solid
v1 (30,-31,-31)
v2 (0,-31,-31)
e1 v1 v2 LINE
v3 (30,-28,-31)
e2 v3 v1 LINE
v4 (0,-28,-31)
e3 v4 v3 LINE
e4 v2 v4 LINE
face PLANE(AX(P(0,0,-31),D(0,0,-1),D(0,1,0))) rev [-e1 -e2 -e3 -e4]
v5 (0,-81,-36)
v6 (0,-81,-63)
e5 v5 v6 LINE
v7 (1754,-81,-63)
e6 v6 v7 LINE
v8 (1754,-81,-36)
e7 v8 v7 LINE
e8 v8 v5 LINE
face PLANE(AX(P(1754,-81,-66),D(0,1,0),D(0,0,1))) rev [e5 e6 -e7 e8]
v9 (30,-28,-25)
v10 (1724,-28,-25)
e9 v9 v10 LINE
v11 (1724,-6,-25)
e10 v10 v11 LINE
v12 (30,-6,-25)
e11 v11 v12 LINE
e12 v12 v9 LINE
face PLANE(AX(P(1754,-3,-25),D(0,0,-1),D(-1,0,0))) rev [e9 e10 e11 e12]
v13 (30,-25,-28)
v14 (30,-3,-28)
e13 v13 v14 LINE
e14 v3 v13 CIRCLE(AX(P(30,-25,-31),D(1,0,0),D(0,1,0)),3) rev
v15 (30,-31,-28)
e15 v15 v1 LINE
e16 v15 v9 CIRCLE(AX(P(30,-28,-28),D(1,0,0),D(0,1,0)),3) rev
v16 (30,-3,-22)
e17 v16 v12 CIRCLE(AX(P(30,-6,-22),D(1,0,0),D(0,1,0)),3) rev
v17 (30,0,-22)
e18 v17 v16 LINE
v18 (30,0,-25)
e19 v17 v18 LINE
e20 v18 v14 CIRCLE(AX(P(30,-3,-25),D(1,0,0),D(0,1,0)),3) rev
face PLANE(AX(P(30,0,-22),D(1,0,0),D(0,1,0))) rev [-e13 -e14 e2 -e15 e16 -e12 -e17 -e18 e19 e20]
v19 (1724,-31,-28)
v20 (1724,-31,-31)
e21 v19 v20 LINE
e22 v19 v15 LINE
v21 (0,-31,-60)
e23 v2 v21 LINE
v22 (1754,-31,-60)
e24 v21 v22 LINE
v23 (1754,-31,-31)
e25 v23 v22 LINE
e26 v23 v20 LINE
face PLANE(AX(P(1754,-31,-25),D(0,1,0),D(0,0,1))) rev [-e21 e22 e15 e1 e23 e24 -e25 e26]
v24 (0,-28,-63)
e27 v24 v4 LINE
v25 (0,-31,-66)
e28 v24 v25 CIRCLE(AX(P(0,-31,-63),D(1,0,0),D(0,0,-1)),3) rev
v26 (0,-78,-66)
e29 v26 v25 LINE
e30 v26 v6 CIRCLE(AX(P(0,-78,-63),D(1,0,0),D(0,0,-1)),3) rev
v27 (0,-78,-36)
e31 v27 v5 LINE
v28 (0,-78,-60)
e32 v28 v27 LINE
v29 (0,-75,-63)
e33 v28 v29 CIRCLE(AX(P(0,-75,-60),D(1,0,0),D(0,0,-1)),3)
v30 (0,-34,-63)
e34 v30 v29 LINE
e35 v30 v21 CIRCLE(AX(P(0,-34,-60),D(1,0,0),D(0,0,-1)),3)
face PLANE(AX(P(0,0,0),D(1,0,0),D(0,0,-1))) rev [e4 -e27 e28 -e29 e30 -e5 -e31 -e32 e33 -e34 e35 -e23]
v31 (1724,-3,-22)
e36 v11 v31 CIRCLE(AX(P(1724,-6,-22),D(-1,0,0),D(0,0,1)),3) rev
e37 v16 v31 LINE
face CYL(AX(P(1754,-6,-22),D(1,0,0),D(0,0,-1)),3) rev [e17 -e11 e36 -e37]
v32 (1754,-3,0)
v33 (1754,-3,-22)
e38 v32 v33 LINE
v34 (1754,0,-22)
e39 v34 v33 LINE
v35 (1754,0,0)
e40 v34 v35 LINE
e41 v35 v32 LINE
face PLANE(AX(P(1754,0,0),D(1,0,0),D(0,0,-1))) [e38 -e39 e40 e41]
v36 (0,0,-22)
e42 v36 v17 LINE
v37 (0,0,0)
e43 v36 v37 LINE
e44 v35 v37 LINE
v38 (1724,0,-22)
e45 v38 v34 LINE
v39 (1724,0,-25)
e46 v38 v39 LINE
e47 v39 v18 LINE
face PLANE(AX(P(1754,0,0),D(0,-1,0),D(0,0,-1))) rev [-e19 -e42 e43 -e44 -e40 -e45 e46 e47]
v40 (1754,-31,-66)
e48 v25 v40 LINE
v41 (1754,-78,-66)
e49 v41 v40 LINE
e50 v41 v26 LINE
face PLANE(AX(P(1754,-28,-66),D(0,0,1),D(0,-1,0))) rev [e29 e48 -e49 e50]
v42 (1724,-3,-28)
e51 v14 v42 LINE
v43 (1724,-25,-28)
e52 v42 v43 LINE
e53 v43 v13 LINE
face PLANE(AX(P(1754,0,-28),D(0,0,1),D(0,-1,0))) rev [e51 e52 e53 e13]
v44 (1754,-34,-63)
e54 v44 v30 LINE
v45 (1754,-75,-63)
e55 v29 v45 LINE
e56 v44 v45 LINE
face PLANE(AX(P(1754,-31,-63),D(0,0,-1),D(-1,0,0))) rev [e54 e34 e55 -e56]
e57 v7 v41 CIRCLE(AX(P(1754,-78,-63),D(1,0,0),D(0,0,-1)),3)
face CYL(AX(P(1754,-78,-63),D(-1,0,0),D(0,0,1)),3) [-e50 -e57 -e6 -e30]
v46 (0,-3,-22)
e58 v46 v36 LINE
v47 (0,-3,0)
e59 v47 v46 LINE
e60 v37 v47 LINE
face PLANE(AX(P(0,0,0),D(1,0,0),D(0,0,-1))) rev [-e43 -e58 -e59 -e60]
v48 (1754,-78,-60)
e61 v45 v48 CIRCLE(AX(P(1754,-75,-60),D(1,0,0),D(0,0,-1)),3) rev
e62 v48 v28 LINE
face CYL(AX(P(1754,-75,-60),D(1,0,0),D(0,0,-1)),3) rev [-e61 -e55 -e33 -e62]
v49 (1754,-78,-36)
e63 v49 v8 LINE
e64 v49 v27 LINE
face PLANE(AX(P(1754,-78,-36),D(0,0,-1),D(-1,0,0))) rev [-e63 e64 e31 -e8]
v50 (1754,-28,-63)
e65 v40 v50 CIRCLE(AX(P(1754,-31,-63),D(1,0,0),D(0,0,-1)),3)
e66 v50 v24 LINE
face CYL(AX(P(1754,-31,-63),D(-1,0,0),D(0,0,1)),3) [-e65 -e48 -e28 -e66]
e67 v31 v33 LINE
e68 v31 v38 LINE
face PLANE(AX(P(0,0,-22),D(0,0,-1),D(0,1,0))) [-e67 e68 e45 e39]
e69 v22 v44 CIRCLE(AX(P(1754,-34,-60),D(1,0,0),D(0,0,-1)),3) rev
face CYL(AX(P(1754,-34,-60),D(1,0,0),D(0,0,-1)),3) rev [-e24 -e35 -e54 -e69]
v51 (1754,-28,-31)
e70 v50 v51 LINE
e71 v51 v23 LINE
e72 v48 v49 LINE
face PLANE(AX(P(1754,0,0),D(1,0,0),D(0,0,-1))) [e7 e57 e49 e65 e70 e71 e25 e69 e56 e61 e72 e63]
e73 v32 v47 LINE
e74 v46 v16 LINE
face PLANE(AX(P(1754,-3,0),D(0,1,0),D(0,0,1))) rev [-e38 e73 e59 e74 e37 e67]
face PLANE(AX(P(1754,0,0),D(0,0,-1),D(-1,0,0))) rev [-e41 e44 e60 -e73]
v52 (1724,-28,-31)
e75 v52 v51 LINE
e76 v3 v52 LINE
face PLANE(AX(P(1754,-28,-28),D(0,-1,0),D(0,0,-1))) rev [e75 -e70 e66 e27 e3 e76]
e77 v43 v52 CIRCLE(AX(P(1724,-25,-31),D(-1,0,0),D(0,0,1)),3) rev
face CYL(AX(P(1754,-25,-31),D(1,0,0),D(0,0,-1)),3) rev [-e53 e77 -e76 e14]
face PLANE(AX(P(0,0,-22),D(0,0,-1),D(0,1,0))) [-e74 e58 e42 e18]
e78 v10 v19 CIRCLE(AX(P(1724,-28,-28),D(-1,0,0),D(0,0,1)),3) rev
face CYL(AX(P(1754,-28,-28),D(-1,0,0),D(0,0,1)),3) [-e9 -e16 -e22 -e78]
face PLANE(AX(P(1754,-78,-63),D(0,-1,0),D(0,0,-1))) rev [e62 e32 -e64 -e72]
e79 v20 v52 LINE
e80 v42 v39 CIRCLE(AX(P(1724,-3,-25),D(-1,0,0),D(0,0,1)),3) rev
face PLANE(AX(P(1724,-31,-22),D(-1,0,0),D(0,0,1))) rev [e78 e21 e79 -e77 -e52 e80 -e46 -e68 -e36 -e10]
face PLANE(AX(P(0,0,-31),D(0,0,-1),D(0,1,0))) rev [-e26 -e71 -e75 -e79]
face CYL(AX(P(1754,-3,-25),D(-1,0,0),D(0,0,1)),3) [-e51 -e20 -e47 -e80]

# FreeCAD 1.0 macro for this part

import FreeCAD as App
import Part
import Sketcher

V = App.Vector


def edges_at(feature, points):
    """Names of the edges that pass closest to the given points."""
    edges = feature.Shape.Edges
    near = lambda p: min(range(len(edges)), key=lambda i: edges[i].distToShape(Part.Vertex(*p))[0])
    return sorted({f"Edge{near(p) + 1}" for p in points})

doc = App.newDocument("Part")
body = doc.addObject("PartDesign::Body", "Body")

# Sketch on YZ plane
sketch1 = body.newObject("Sketcher::SketchObject", "Sketch")
sketch1.AttachmentSupport = (doc.getObject("YZ_Plane"), [""])
sketch1.MapMode = "FlatFace"
sketch1.addGeometry([
    Part.LineSegment(V(0, -28, 0), V(0, 0, 0)),  # 0
    Part.LineSegment(V(0, 0, 0), V(-3, 0, 0)),  # 1
    Part.LineSegment(V(-3, 0, 0), V(-3, -25, 0)),  # 2
    Part.LineSegment(V(-3, -25, 0), V(-31, -25, 0)),  # 3
    Part.LineSegment(V(-31, -25, 0), V(-31, -63, 0)),  # 4
    Part.LineSegment(V(-31, -63, 0), V(-78, -63, 0)),  # 5
    Part.LineSegment(V(-78, -63, 0), V(-78, -36, 0)),  # 6
    Part.LineSegment(V(-78, -36, 0), V(-81, -36, 0)),  # 7
    Part.LineSegment(V(-81, -36, 0), V(-81, -66, 0)),  # 8
    Part.LineSegment(V(-81, -66, 0), V(-28, -66, 0)),  # 9
    Part.LineSegment(V(-28, -66, 0), V(-28, -28, 0)),  # 10
    Part.LineSegment(V(-28, -28, 0), V(0, -28, 0)),  # 11
], False)
sketch1.addConstraint([
    Sketcher.Constraint("Coincident", 0, 2, 1, 1),
    Sketcher.Constraint("Coincident", 1, 2, 2, 1),
    Sketcher.Constraint("Coincident", 2, 2, 3, 1),
    Sketcher.Constraint("Coincident", 3, 2, 4, 1),
    Sketcher.Constraint("Coincident", 4, 2, 5, 1),
    Sketcher.Constraint("Coincident", 5, 2, 6, 1),
    Sketcher.Constraint("Coincident", 6, 2, 7, 1),
    Sketcher.Constraint("Coincident", 7, 2, 8, 1),
    Sketcher.Constraint("Coincident", 8, 2, 9, 1),
    Sketcher.Constraint("Coincident", 9, 2, 10, 1),
    Sketcher.Constraint("Coincident", 10, 2, 11, 1),
    Sketcher.Constraint("Coincident", 11, 2, 0, 1),
    Sketcher.Constraint("Vertical", 0),
    Sketcher.Constraint("Horizontal", 1),
    Sketcher.Constraint("Vertical", 2),
    Sketcher.Constraint("Horizontal", 3),
    Sketcher.Constraint("Vertical", 4),
    Sketcher.Constraint("Horizontal", 5),
    Sketcher.Constraint("Vertical", 6),
    Sketcher.Constraint("Horizontal", 7),
    Sketcher.Constraint("Vertical", 8),
    Sketcher.Constraint("Horizontal", 9),
    Sketcher.Constraint("Vertical", 10),
    Sketcher.Constraint("Horizontal", 11),
    Sketcher.Constraint("Coincident", 0, 2, -1, 1),
    Sketcher.Constraint("Equal", 1, 7),
    Sketcher.Constraint("Equal", 3, 11),
    Sketcher.Constraint("Equal", 11, 0),
    Sketcher.Constraint("Equal", 4, 10),
    Sketcher.Constraint("DistanceX", 1, 2, 1, 1, 3.0),
    Sketcher.Constraint("DistanceX", 3, 2, 3, 1, 28.0),
    Sketcher.Constraint("DistanceX", 5, 2, 5, 1, 47.0),
    Sketcher.Constraint("DistanceY", 2, 2, 2, 1, 25.0),
    Sketcher.Constraint("DistanceY", 4, 2, 4, 1, 38.0),
    Sketcher.Constraint("DistanceY", 6, 1, 6, 2, 27.0),
])
pad1 = body.newObject("PartDesign::Pad", "Pad")
pad1.Profile = sketch1
pad1.Length = 1754
doc.recompute()

fillet = body.newObject("PartDesign::Fillet", "Fillet")
fillet.Base = (pad1, edges_at(pad1, [
    (877, 0, -28),
    (877, -28, -28),
    (877, -28, -66),
    (877, -81, -66),
    (877, -78, -63),
    (877, -31, -63),
    (877, -31, -25),
    (877, -3, -25),
]))
fillet.Radius = 3

# Sketch on XY plane
sketch2 = body.newObject("Sketcher::SketchObject", "Sketch001")
sketch2.AttachmentSupport = (doc.getObject("XY_Plane"), [""])
sketch2.MapMode = "FlatFace"
sketch2.AttachmentOffset = App.Placement(V(0, 0, -28), App.Rotation())
sketch2.addGeometry([
    Part.LineSegment(V(30, 0, 0), V(30, -31, 0)),  # 0
    Part.LineSegment(V(30, -31, 0), V(0, -31, 0)),  # 1
    Part.LineSegment(V(0, -31, 0), V(0, 0, 0)),  # 2
    Part.LineSegment(V(0, 0, 0), V(30, 0, 0)),  # 3
    Part.LineSegment(V(1754, 0, 0), V(1754, -31, 0)),  # 4
    Part.LineSegment(V(1754, -31, 0), V(1724, -31, 0)),  # 5
    Part.LineSegment(V(1724, -31, 0), V(1724, 0, 0)),  # 6
    Part.LineSegment(V(1724, 0, 0), V(1754, 0, 0)),  # 7
], False)
sketch2.addConstraint([
    Sketcher.Constraint("Coincident", 0, 2, 1, 1),
    Sketcher.Constraint("Coincident", 1, 2, 2, 1),
    Sketcher.Constraint("Coincident", 2, 2, 3, 1),
    Sketcher.Constraint("Coincident", 3, 2, 0, 1),
    Sketcher.Constraint("Coincident", 4, 2, 5, 1),
    Sketcher.Constraint("Coincident", 5, 2, 6, 1),
    Sketcher.Constraint("Coincident", 6, 2, 7, 1),
    Sketcher.Constraint("Coincident", 7, 2, 4, 1),
    Sketcher.Constraint("Vertical", 0),
    Sketcher.Constraint("Horizontal", 1),
    Sketcher.Constraint("Vertical", 2),
    Sketcher.Constraint("Horizontal", 3),
    Sketcher.Constraint("Vertical", 4),
    Sketcher.Constraint("Horizontal", 5),
    Sketcher.Constraint("Vertical", 6),
    Sketcher.Constraint("Horizontal", 7),
    Sketcher.Constraint("Coincident", 2, 2, -1, 1),
    Sketcher.Constraint("PointOnObject", 6, 2, -1),
    Sketcher.Constraint("Horizontal", 1, 2, 4, 2),
    Sketcher.Constraint("Equal", 3, 5),
    Sketcher.Constraint("DistanceX", 1, 2, 1, 1, 30.0),
    Sketcher.Constraint("DistanceY", 0, 2, 0, 1, 31.0),
    Sketcher.Constraint("DistanceX", -1, 1, 4, 2, 1754.0),
])
pocket1 = body.newObject("PartDesign::Pocket", "Pocket")
pocket1.Profile = sketch2
pocket1.Type = "TwoLengths"
pocket1.Length = 3
pocket1.Length2 = 6

doc.recompute()
